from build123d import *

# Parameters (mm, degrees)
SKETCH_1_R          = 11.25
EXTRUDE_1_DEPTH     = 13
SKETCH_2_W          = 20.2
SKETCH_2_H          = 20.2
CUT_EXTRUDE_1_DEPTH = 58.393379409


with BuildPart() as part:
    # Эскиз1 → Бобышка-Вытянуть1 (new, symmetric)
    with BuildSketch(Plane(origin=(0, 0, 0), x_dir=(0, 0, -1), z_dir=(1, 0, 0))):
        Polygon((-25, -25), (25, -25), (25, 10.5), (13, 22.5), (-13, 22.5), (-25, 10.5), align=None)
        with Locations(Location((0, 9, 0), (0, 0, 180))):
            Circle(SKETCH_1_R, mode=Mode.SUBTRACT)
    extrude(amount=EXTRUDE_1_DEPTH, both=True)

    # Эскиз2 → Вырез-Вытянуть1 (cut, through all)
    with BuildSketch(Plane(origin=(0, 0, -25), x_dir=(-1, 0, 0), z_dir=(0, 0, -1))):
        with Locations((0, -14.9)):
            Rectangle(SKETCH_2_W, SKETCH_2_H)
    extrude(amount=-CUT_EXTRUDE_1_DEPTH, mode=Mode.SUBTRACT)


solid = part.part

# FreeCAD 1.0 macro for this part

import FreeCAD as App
import Part
import Sketcher
from FreeCAD import Vector
Q = App.Units.Quantity

doc = App.newDocument("Part")
body = doc.addObject("PartDesign::Body", "Body")

sketch1 = doc.addObject("Sketcher::SketchObject", "Sketch")
body.addObject(sketch1)
sketch1.AttachmentSupport = (doc.YZ_Plane, [""])
sketch1.MapMode = "FlatFace"
sketch1.addGeometry([
    Part.LineSegment(Vector(-25, 25, 0), Vector(-25, -25, 0)),
    Part.LineSegment(Vector(-25, -25, 0), Vector(10, -25, 0)),
    Part.LineSegment(Vector(10, -25, 0), Vector(22, -13, 0)),
    Part.LineSegment(Vector(22, -13, 0), Vector(22, 13, 0)),
    Part.LineSegment(Vector(22, 13, 0), Vector(10, 25, 0)),
    Part.LineSegment(Vector(10, 25, 0), Vector(-25, 25, 0)),
    Part.Circle(Vector(9, 0, 0), Vector(0, 0, 1), 11),
], False)
sketch1.addConstraint([
    Sketcher.Constraint("Coincident", 0, 2, 1, 1),
    Sketcher.Constraint("Coincident", 1, 2, 2, 1),
    Sketcher.Constraint("Coincident", 2, 2, 3, 1),
    Sketcher.Constraint("Coincident", 3, 2, 4, 1),
    Sketcher.Constraint("Coincident", 4, 2, 5, 1),
    Sketcher.Constraint("Coincident", 5, 2, 0, 1),
    Sketcher.Constraint("Vertical", 0),
    Sketcher.Constraint("Horizontal", 1),
    Sketcher.Constraint("Vertical", 3),
    Sketcher.Constraint("Horizontal", 5),
    Sketcher.Constraint("Symmetric", 1, 2, 4, 2, -1),
    Sketcher.Constraint("PointOnObject", 6, 3, -1),
    Sketcher.Constraint("Perpendicular", 2, 4),
    Sketcher.Constraint("Equal", 2, 4),
    Sketcher.Constraint("Diameter", 6, Q("22.5 mm")),
    Sketcher.Constraint("DistanceY", 0, 2, 0, 1, Q("50 mm")),
    Sketcher.Constraint("DistanceY", 3, 1, 3, 2, Q("26 mm")),
    Sketcher.Constraint("DistanceX", 1, 1, 1, 2, Q("35.5 mm")),
    Sketcher.Constraint("DistanceX", -1, 1, 6, 3, Q("9 mm")),
    Sketcher.Constraint("DistanceX", 0, 2, -1, 1, Q("25 mm")),
])
pad1 = doc.addObject("PartDesign::Pad", "Pad")
body.addObject(pad1)
pad1.Profile = sketch1
pad1.Length = 26
pad1.Midplane = True

sketch2 = doc.addObject("Sketcher::SketchObject", "Sketch001")
body.addObject(sketch2)
sketch2.AttachmentSupport = (doc.XY_Plane, [""])
sketch2.MapMode = "FlatFace"
sketch2.AttachmentOffset = App.Placement(Vector(0, 0, -25), App.Rotation())
sketch2.addGeometry([
    Part.LineSegment(Vector(10, -5, 0), Vector(10, -25, 0)),
    Part.LineSegment(Vector(10, -25, 0), Vector(-10, -25, 0)),
    Part.LineSegment(Vector(-10, -25, 0), Vector(-10, -5, 0)),
    Part.LineSegment(Vector(-10, -5, 0), Vector(10, -5, 0)),
], False)
sketch2.addConstraint([
    Sketcher.Constraint("Coincident", 0, 2, 1, 1),
    Sketcher.Constraint("Coincident", 1, 2, 2, 1),
    Sketcher.Constraint("Coincident", 2, 2, 3, 1),
    Sketcher.Constraint("Coincident", 3, 2, 0, 1),
    Sketcher.Constraint("Vertical", 0),
    Sketcher.Constraint("Horizontal", 1),
    Sketcher.Constraint("Vertical", 2),
    Sketcher.Constraint("Horizontal", 3),
    Sketcher.Constraint("Equal", 3, 0),
    Sketcher.Constraint("DistanceX", 1, 2, 1, 1, Q("20.2 mm")),
    Sketcher.Constraint("DistanceY", 0, 2, -1, 1, Q("25 mm")),
    Sketcher.Constraint("DistanceX", -1, 1, 0, 2, Q("10.1 mm")),
])
pocket1 = doc.addObject("PartDesign::Pocket", "Pocket")
body.addObject(pocket1)
pocket1.Profile = sketch2
pocket1.Type = "ThroughAll"
pocket1.Reversed = True

doc.recompute()
